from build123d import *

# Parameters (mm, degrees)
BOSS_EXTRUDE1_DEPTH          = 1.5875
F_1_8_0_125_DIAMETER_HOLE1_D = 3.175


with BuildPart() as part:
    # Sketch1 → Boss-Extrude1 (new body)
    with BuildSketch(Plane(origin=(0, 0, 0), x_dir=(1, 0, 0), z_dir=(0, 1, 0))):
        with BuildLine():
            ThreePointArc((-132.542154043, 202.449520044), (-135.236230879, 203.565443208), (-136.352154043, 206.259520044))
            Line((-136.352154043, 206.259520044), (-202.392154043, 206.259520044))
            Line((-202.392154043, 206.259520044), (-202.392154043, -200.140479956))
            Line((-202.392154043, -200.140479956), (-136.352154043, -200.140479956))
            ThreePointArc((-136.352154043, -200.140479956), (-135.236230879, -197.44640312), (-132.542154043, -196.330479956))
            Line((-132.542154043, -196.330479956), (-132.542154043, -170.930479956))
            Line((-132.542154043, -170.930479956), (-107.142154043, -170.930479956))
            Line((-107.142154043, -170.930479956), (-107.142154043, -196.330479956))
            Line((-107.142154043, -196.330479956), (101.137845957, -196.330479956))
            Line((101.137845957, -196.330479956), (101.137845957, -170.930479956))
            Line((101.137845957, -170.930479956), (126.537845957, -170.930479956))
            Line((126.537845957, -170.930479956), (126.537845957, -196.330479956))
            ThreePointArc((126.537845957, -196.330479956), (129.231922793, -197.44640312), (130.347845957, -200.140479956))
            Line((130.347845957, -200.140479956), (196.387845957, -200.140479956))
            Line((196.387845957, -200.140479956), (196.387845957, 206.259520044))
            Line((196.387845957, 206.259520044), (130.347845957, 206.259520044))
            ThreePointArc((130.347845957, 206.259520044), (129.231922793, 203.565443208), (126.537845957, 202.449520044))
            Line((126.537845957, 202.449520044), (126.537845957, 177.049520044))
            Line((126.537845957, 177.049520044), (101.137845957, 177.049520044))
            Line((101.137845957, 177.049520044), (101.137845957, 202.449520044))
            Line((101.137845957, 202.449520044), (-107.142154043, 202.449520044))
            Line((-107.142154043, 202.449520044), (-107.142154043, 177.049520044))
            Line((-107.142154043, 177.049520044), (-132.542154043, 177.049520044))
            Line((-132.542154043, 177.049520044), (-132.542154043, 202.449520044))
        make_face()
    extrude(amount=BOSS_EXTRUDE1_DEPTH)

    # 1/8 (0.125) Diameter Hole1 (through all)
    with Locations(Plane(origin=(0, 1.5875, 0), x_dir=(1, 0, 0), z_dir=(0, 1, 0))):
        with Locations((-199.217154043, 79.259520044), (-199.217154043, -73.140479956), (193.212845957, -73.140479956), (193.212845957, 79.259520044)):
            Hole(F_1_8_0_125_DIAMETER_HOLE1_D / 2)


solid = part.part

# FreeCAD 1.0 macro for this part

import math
import FreeCAD as App
import Part
import Sketcher

V = App.Vector
Q = App.Units.Quantity

doc = App.newDocument("Part")
body = doc.addObject("PartDesign::Body", "Body")

sketch1 = body.newObject("Sketcher::SketchObject", "Sketch")
sketch1.AttachmentSupport = (doc.getObject("XZ_Plane"), [""])
sketch1.MapMode = "FlatFace"
sketch1.addGeometry(Part.ArcOfCircle(Part.Circle(V(-132.5, -206.3, 0), V(0, 0, 1), 3.8), math.radians(90), math.radians(180)), False)
sketch1.addGeometry(Part.LineSegment(V(-136.4, -206.3, 0), V(-202.4, -206.3, 0)), False)
sketch1.addGeometry(Part.LineSegment(V(-202.4, -206.3, 0), V(-202.4, 200.1, 0)), False)
sketch1.addGeometry(Part.LineSegment(V(-202.4, 200.1, 0), V(-136.4, 200.1, 0)), False)
sketch1.addGeometry(Part.ArcOfCircle(Part.Circle(V(-132.5, 200.1, 0), V(0, 0, 1), 3.8), math.radians(-180), math.radians(-90)), False)
sketch1.addGeometry(Part.LineSegment(V(-132.5, 196.3, 0), V(-132.5, 170.9, 0)), False)
sketch1.addGeometry(Part.LineSegment(V(-132.5, 170.9, 0), V(-107.1, 170.9, 0)), False)
sketch1.addGeometry(Part.LineSegment(V(-107.1, 170.9, 0), V(-107.1, 196.3, 0)), False)
sketch1.addGeometry(Part.LineSegment(V(-107.1, 196.3, 0), V(101.1, 196.3, 0)), False)
sketch1.addGeometry(Part.LineSegment(V(101.1, 196.3, 0), V(101.1, 170.9, 0)), False)
sketch1.addGeometry(Part.LineSegment(V(101.1, 170.9, 0), V(126.5, 170.9, 0)), False)
sketch1.addGeometry(Part.LineSegment(V(126.5, 170.9, 0), V(126.5, 196.3, 0)), False)
sketch1.addGeometry(Part.ArcOfCircle(Part.Circle(V(126.5, 200.1, 0), V(0, 0, 1), 3.8), math.radians(-90), math.radians(0)), False)
sketch1.addGeometry(Part.LineSegment(V(130.3, 200.1, 0), V(196.4, 200.1, 0)), False)
sketch1.addGeometry(Part.LineSegment(V(196.4, 200.1, 0), V(196.4, -206.3, 0)), False)
sketch1.addGeometry(Part.LineSegment(V(196.4, -206.3, 0), V(130.3, -206.3, 0)), False)
sketch1.addGeometry(Part.ArcOfCircle(Part.Circle(V(126.5, -206.3, 0), V(0, 0, 1), 3.8), math.radians(0), math.radians(90)), False)
sketch1.addGeometry(Part.LineSegment(V(126.5, -202.4, 0), V(126.5, -177, 0)), False)
sketch1.addGeometry(Part.LineSegment(V(126.5, -177, 0), V(101.1, -177, 0)), False)
sketch1.addGeometry(Part.LineSegment(V(101.1, -177, 0), V(101.1, -202.4, 0)), False)
sketch1.addGeometry(Part.LineSegment(V(101.1, -202.4, 0), V(-107.1, -202.4, 0)), False)
sketch1.addGeometry(Part.LineSegment(V(-107.1, -202.4, 0), V(-107.1, -177, 0)), False)
sketch1.addGeometry(Part.LineSegment(V(-107.1, -177, 0), V(-132.5, -177, 0)), False)
sketch1.addGeometry(Part.LineSegment(V(-132.5, -177, 0), V(-132.5, -202.4, 0)), False)
sketch1.addConstraint(Sketcher.Constraint("Coincident", 0, 2, 1, 1))
sketch1.addConstraint(Sketcher.Constraint("Coincident", 1, 2, 2, 1))
sketch1.addConstraint(Sketcher.Constraint("Coincident", 2, 2, 3, 1))
sketch1.addConstraint(Sketcher.Constraint("Coincident", 3, 2, 4, 1))
sketch1.addConstraint(Sketcher.Constraint("Coincident", 4, 2, 5, 1))
sketch1.addConstraint(Sketcher.Constraint("Coincident", 5, 2, 6, 1))
sketch1.addConstraint(Sketcher.Constraint("Coincident", 6, 2, 7, 1))
sketch1.addConstraint(Sketcher.Constraint("Coincident", 7, 2, 8, 1))
sketch1.addConstraint(Sketcher.Constraint("Coincident", 8, 2, 9, 1))
sketch1.addConstraint(Sketcher.Constraint("Coincident", 9, 2, 10, 1))
sketch1.addConstraint(Sketcher.Constraint("Coincident", 10, 2, 11, 1))
sketch1.addConstraint(Sketcher.Constraint("Coincident", 11, 2, 12, 1))
sketch1.addConstraint(Sketcher.Constraint("Coincident", 12, 2, 13, 1))
sketch1.addConstraint(Sketcher.Constraint("Coincident", 13, 2, 14, 1))
sketch1.addConstraint(Sketcher.Constraint("Coincident", 14, 2, 15, 1))
sketch1.addConstraint(Sketcher.Constraint("Coincident", 15, 2, 16, 1))
sketch1.addConstraint(Sketcher.Constraint("Coincident", 16, 2, 17, 1))
sketch1.addConstraint(Sketcher.Constraint("Coincident", 17, 2, 18, 1))
sketch1.addConstraint(Sketcher.Constraint("Coincident", 18, 2, 19, 1))
sketch1.addConstraint(Sketcher.Constraint("Coincident", 19, 2, 20, 1))
sketch1.addConstraint(Sketcher.Constraint("Coincident", 20, 2, 21, 1))
sketch1.addConstraint(Sketcher.Constraint("Coincident", 21, 2, 22, 1))
sketch1.addConstraint(Sketcher.Constraint("Coincident", 22, 2, 23, 1))
sketch1.addConstraint(Sketcher.Constraint("Coincident", 23, 2, 0, 1))
sketch1.addConstraint(Sketcher.Constraint("Horizontal", 1))
sketch1.addConstraint(Sketcher.Constraint("Vertical", 2))
sketch1.addConstraint(Sketcher.Constraint("Horizontal", 3))
sketch1.addConstraint(Sketcher.Constraint("Vertical", 5))
sketch1.addConstraint(Sketcher.Constraint("Horizontal", 6))
sketch1.addConstraint(Sketcher.Constraint("Vertical", 7))
sketch1.addConstraint(Sketcher.Constraint("Horizontal", 8))
sketch1.addConstraint(Sketcher.Constraint("Vertical", 9))
sketch1.addConstraint(Sketcher.Constraint("Horizontal", 10))
sketch1.addConstraint(Sketcher.Constraint("Vertical", 11))
sketch1.addConstraint(Sketcher.Constraint("Horizontal", 13))
sketch1.addConstraint(Sketcher.Constraint("Vertical", 14))
sketch1.addConstraint(Sketcher.Constraint("Horizontal", 15))
sketch1.addConstraint(Sketcher.Constraint("Vertical", 17))
sketch1.addConstraint(Sketcher.Constraint("Horizontal", 18))
sketch1.addConstraint(Sketcher.Constraint("Vertical", 19))
sketch1.addConstraint(Sketcher.Constraint("Horizontal", 20))
sketch1.addConstraint(Sketcher.Constraint("Vertical", 21))
sketch1.addConstraint(Sketcher.Constraint("Horizontal", 22))
sketch1.addConstraint(Sketcher.Constraint("Vertical", 23))
sketch1.addConstraint(Sketcher.Constraint("Equal", 0, 4))
sketch1.addConstraint(Sketcher.Constraint("Equal", 4, 12))
sketch1.addConstraint(Sketcher.Constraint("Equal", 12, 16))
sketch1.addConstraint(Sketcher.Constraint("Horizontal", 4, 3, 12, 3))
sketch1.addConstraint(Sketcher.Constraint("Horizontal", 0, 3, 16, 3))
sketch1.addConstraint(Sketcher.Constraint("Horizontal", 16, 3, 0, 2))
sketch1.addConstraint(Sketcher.Constraint("Horizontal", 12, 3, 2, 2))
sketch1.addConstraint(Sketcher.Constraint("Horizontal", 4, 2, 7, 2))
sketch1.addConstraint(Sketcher.Constraint("Horizontal", 6, 2, 9, 2))
sketch1.addConstraint(Sketcher.Constraint("Horizontal", 3, 2, 12, 2))
sketch1.addConstraint(Sketcher.Constraint("Horizontal", 1, 2, 14, 2))
sketch1.addConstraint(Sketcher.Constraint("Horizontal", 16, 2, 19, 2))
sketch1.addConstraint(Sketcher.Constraint("Horizontal", 18, 2, 21, 2))
sketch1.addConstraint(Sketcher.Constraint("Vertical", 0, 3, 4, 3))
sketch1.addConstraint(Sketcher.Constraint("Vertical", 12, 3, 16, 3))
sketch1.addConstraint(Sketcher.Constraint("Vertical", 0, 3, 4, 2))
sketch1.addConstraint(Sketcher.Constraint("Vertical", 16, 3, 10, 2))
sketch1.addConstraint(Sketcher.Constraint("Vertical", 11, 2, 16, 2))
sketch1.addConstraint(Sketcher.Constraint("Vertical", 9, 2, 18, 2))
sketch1.addConstraint(Sketcher.Constraint("Vertical", 7, 2, 20, 2))
sketch1.addConstraint(Sketcher.Constraint("Vertical", 5, 2, 22, 2))
sketch1.addConstraint(Sketcher.Constraint("Equal", 6, 10))
sketch1.addConstraint(Sketcher.Constraint("Equal", 3, 13))
sketch1.addConstraint(Sketcher.Constraint("Equal", 22, 5))
sketch1.addConstraint(Sketcher.Constraint("Equal", 11, 17))
sketch1.addConstraint(Sketcher.Constraint("DistanceX", 6, 1, 6, 2, Q("1 in")))
sketch1.addConstraint(Sketcher.Constraint("DistanceY", 2, 1, 2, 2, Q("16 in")))
sketch1.addConstraint(Sketcher.Constraint("Radius", 0, Q("0.15 in")))
sketch1.addConstraint(Sketcher.Constraint("DistanceX", 1, 2, 1, 1, Q("2.6 in")))
sketch1.addConstraint(Sketcher.Constraint("DistanceX", 8, 1, 8, 2, Q("8.2 in")))
sketch1.addConstraint(Sketcher.Constraint("DistanceY", 0, 3, -1, 1, 206.25952))
sketch1.addConstraint(Sketcher.Constraint("DistanceX", 0, 3, -1, 1, 132.542154))
pad1 = body.newObject("PartDesign::Pad", "Pad")
pad1.Profile = sketch1
pad1.Length = Q("0.0625 in")
pad1.Reversed = True

sketch2 = body.newObject("Sketcher::SketchObject", "Sketch001")
sketch2.AttachmentSupport = (doc.getObject("XZ_Plane"), [""])
sketch2.MapMode = "FlatFace"
sketch2.AttachmentOffset = App.Placement(V(0, 0, -0.0625 * 25.4), App.Rotation())
sketch2.addGeometry(Part.Circle(V(-199.2, -79.3, 0), V(0, 0, 1), 1.6), False)
sketch2.addGeometry(Part.Circle(V(-199.2, 73.1, 0), V(0, 0, 1), 1.6), False)
sketch2.addGeometry(Part.Circle(V(193.2, 73.1, 0), V(0, 0, 1), 1.6), False)
sketch2.addGeometry(Part.Circle(V(193.2, -79.3, 0), V(0, 0, 1), 1.6), False)
sketch2.addConstraint(Sketcher.Constraint("Equal", 0, 1))
sketch2.addConstraint(Sketcher.Constraint("Equal", 1, 2))
sketch2.addConstraint(Sketcher.Constraint("Equal", 2, 3))
sketch2.addConstraint(Sketcher.Constraint("Horizontal", 1, 3, 2, 3))
sketch2.addConstraint(Sketcher.Constraint("Horizontal", 0, 3, 3, 3))
sketch2.addConstraint(Sketcher.Constraint("Vertical", 0, 3, 1, 3))
sketch2.addConstraint(Sketcher.Constraint("Vertical", 2, 3, 3, 3))
sketch2.addConstraint(Sketcher.Constraint("Diameter", 0, Q("0.125 in")))
sketch2.addConstraint(Sketcher.Constraint("DistanceY", 0, 3, 1, 3, Q("6 in")))
sketch2.addConstraint(Sketcher.Constraint("DistanceX", 1, 3, 2, 3, Q("15.45 in")))
sketch2.addConstraint(Sketcher.Constraint("DistanceY", 0, 3, -1, 1, 79.25952))
sketch2.addConstraint(Sketcher.Constraint("DistanceX", 0, 3, -1, 1, 199.217154))
doc.recompute()
hole = body.newObject("PartDesign::Hole", "Hole")
hole.Profile = sketch2
hole.ThreadType = "None"
hole.Diameter = Q("0.125 in")
hole.DepthType = "ThroughAll"
hole.Reversed = True

doc.recompute()
